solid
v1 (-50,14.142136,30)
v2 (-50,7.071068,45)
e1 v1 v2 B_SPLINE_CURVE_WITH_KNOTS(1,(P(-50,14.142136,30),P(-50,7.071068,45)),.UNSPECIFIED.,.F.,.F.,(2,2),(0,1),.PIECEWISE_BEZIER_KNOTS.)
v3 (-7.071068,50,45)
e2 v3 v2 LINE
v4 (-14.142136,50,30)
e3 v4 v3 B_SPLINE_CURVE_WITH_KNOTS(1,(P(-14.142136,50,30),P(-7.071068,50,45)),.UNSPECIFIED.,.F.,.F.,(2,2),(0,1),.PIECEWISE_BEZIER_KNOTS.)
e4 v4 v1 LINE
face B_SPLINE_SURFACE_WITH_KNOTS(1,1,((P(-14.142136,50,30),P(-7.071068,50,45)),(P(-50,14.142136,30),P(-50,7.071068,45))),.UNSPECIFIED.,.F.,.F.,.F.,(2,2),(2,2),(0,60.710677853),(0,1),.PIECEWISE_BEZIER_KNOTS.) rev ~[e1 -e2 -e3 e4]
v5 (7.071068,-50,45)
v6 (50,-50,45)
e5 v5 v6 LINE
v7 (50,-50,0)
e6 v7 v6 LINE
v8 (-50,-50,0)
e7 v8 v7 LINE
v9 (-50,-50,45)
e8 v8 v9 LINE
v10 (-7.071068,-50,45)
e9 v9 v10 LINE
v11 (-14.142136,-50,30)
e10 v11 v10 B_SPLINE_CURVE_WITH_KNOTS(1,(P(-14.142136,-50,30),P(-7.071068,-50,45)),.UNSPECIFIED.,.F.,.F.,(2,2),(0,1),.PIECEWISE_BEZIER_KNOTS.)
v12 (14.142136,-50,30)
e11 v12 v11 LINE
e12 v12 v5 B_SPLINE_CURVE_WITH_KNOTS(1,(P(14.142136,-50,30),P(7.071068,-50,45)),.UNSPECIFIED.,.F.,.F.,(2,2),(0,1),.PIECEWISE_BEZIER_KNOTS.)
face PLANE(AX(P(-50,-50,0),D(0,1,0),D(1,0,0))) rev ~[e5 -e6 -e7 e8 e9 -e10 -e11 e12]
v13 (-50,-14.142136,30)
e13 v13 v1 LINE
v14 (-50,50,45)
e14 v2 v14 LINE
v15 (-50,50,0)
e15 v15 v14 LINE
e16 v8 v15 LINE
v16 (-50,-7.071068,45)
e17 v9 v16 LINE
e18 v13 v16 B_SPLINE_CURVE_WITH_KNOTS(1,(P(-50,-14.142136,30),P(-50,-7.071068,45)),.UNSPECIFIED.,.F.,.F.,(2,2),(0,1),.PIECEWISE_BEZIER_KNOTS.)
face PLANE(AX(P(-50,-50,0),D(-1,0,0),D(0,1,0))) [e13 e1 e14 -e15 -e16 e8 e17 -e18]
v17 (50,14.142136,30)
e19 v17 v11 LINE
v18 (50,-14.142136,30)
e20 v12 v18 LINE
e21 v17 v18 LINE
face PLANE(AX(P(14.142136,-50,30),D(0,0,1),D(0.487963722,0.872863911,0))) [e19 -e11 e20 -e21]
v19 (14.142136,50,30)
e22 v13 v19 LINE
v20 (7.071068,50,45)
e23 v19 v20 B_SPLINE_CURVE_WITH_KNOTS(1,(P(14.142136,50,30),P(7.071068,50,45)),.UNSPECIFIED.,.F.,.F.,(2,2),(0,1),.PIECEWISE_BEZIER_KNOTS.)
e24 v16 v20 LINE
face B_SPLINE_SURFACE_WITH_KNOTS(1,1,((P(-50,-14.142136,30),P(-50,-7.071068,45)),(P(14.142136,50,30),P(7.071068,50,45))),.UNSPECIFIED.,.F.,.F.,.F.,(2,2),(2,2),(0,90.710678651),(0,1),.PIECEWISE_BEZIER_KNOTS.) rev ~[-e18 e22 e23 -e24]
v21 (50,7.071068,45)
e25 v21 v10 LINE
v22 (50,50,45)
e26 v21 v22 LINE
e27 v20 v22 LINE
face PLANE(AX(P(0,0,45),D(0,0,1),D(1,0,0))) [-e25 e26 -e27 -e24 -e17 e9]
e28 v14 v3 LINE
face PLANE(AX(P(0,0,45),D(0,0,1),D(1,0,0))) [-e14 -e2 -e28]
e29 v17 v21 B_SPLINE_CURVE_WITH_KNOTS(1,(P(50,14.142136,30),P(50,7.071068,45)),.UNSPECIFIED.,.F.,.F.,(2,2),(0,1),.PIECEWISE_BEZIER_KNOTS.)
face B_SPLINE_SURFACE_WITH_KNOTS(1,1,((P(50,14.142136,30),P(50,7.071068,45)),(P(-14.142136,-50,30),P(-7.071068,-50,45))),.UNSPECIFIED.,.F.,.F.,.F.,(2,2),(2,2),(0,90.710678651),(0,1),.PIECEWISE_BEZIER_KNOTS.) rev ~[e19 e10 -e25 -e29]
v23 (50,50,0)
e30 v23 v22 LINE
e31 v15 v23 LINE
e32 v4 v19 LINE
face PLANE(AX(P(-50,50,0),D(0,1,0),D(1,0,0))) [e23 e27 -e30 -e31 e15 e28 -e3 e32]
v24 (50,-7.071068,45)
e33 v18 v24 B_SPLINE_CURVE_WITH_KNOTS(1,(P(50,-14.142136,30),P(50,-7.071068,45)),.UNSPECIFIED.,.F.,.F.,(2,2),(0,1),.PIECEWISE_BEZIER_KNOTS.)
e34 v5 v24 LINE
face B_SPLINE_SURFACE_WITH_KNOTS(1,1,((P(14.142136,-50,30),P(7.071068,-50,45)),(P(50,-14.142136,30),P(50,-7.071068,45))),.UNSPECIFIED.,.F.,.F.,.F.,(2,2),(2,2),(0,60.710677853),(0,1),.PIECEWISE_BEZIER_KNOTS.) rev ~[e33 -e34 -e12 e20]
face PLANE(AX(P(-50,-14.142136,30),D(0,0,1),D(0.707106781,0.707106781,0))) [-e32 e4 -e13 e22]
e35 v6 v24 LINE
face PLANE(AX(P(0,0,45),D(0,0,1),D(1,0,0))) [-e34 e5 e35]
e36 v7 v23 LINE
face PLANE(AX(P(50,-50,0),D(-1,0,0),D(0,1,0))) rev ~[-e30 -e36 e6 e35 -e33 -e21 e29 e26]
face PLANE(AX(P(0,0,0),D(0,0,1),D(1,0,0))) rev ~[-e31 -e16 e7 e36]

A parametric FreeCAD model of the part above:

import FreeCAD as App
import Part
import Sketcher
Q = App.Units.Quantity

doc = App.newDocument("Part")
body = doc.addObject("PartDesign::Body", "Body")

sketch1 = doc.addObject("Sketcher::SketchObject", "Sketch")
body.addObject(sketch1)
sketch1.AttachmentSupport = (doc.XY_Plane, [""])
sketch1.MapMode = "FlatFace"
sketch1.addGeometry([
    Part.LineSegment(App.Vector(-50, 50, 0), App.Vector(-50, -50, 0)),
    Part.LineSegment(App.Vector(-50, -50, 0), App.Vector(50, -50, 0)),
    Part.LineSegment(App.Vector(50, -50, 0), App.Vector(50, 50, 0)),
    Part.LineSegment(App.Vector(50, 50, 0), App.Vector(-50, 50, 0)),
], False)
sketch1.addConstraint([
    Sketcher.Constraint("Coincident", 0, 2, 1, 1),
    Sketcher.Constraint("Coincident", 1, 2, 2, 1),
    Sketcher.Constraint("Coincident", 2, 2, 3, 1),
    Sketcher.Constraint("Coincident", 3, 2, 0, 1),
    Sketcher.Constraint("Vertical", 0),
    Sketcher.Constraint("Horizontal", 1),
    Sketcher.Constraint("Vertical", 2),
    Sketcher.Constraint("Horizontal", 3),
    Sketcher.Constraint("Symmetric", 0, 2, 2, 2, -1, 1),
    Sketcher.Constraint("Equal", 3, 0),
    Sketcher.Constraint("DistanceX", 1, 1, 1, 2, Q("100 mm")),
])
pad1 = doc.addObject("PartDesign::Pad", "Pad")
body.addObject(pad1)
pad1.Profile = sketch1
pad1.Length = 45

sketch2 = doc.addObject("Sketcher::SketchObject", "Sketch001")
body.addObject(sketch2)
sketch2.AttachmentSupport = (doc.XY_Plane, [""])
sketch2.MapMode = "FlatFace"
sketch2.AttachmentOffset = App.Placement(App.Vector(0, 0, 45), App.Rotation())
sketch2.addGeometry([
    Part.LineSegment(App.Vector(50, -7.071068, 0), App.Vector(50, 7.071068, 0)),
    Part.LineSegment(App.Vector(50, 7.071068, 0), App.Vector(-7.071068, -50, 0)),
    Part.LineSegment(App.Vector(-7.071068, -50, 0), App.Vector(7.071068, -50, 0)),
    Part.LineSegment(App.Vector(7.071068, -50, 0), App.Vector(50, -7.071068, 0)),
    Part.LineSegment(App.Vector(7.071068, 50, 0), App.Vector(-7.071068, 50, 0)),
    Part.LineSegment(App.Vector(-7.071068, 50, 0), App.Vector(-50, 7.071068, 0)),
    Part.LineSegment(App.Vector(-50, 7.071068, 0), App.Vector(-50, -7.071068, 0)),
    Part.LineSegment(App.Vector(-50, -7.071068, 0), App.Vector(7.071068, 50, 0)),
], False)
sketch2.addConstraint([
    Sketcher.Constraint("Coincident", 0, 2, 1, 1),
    Sketcher.Constraint("Coincident", 1, 2, 2, 1),
    Sketcher.Constraint("Coincident", 2, 2, 3, 1),
    Sketcher.Constraint("Coincident", 3, 2, 0, 1),
    Sketcher.Constraint("Coincident", 4, 2, 5, 1),
    Sketcher.Constraint("Coincident", 5, 2, 6, 1),
    Sketcher.Constraint("Coincident", 6, 2, 7, 1),
    Sketcher.Constraint("Coincident", 7, 2, 4, 1),
    Sketcher.Constraint("Vertical", 0),
    Sketcher.Constraint("Horizontal", 2),
    Sketcher.Constraint("Horizontal", 4),
    Sketcher.Constraint("Vertical", 6),
    Sketcher.Constraint("Symmetric", 2, 2, 4, 2, -1, 1),
    Sketcher.Constraint("Symmetric", 3, 2, 5, 2, -1, 1),
    Sketcher.Constraint("Parallel", 1, 3),
    Sketcher.Constraint("Parallel", 5, 7),
    Sketcher.Constraint("Horizontal", 0, 2, 5, 2),
    Sketcher.Constraint("Horizontal", 3, 2, 6, 2),
    Sketcher.Constraint("Vertical", 1, 2, 4, 2),
    Sketcher.Constraint("Equal", 4, 0),
    Sketcher.Constraint("DistanceX", -1, 1, 0, 2, Q("50 mm")),
    Sketcher.Constraint("Distance", 1, Q("80.710678 mm")),
])
pocket1 = doc.addObject("PartDesign::Pocket", "Pocket")
body.addObject(pocket1)
pocket1.Profile = sketch2
pocket1.Length = 15

sketch3 = doc.addObject("Sketcher::SketchObject", "Sketch002")
body.addObject(sketch3)
sketch3.AttachmentSupport = (doc.XY_Plane, [""])
sketch3.MapMode = "FlatFace"
sketch3.AttachmentOffset = App.Placement(App.Vector(0, 0, 30), App.Rotation())
sketch3.addGeometry([
    Part.LineSegment(App.Vector(14.142136, -50, 0), App.Vector(50, -14.142136, 0)),
    Part.LineSegment(App.Vector(50, -14.142136, 0), App.Vector(50, 14.142136, 0)),
    Part.LineSegment(App.Vector(50, 14.142136, 0), App.Vector(-14.142136, -50, 0)),
    Part.LineSegment(App.Vector(-14.142136, -50, 0), App.Vector(14.142136, -50, 0)),
], False)
sketch3.addConstraint([
    Sketcher.Constraint("Coincident", 0, 2, 1, 1),
    Sketcher.Constraint("Coincident", 1, 2, 2, 1),
    Sketcher.Constraint("Coincident", 2, 2, 3, 1),
    Sketcher.Constraint("Coincident", 3, 2, 0, 1),
    Sketcher.Constraint("Vertical", 1),
    Sketcher.Constraint("Horizontal", 3),
    Sketcher.Constraint("Parallel", 0, 2),
    Sketcher.Constraint("Equal", 3, 1),
    Sketcher.Constraint("DistanceX", -1, 1, 0, 2, Q("50 mm")),
    Sketcher.Constraint("DistanceY", 2, 2, -1, 1, Q("50 mm")),
    Sketcher.Constraint("Distance", 2, Q("90.710679 mm")),
    Sketcher.Constraint("DistanceX", 3, 1, 3, 2, Q("28.284272 mm")),
])

sketch4 = doc.addObject("Sketcher::SketchObject", "Sketch003")
body.addObject(sketch4)
sketch4.AttachmentSupport = (doc.XY_Plane, [""])
sketch4.MapMode = "FlatFace"
sketch4.AttachmentOffset = App.Placement(App.Vector(0, 0, 45), App.Rotation())
sketch4.addGeometry([
    Part.LineSegment(App.Vector(50, -7.071068, 0), App.Vector(50, 7.071068, 0)),
    Part.LineSegment(App.Vector(50, 7.071068, 0), App.Vector(-7.071068, -50, 0)),
    Part.LineSegment(App.Vector(-7.071068, -50, 0), App.Vector(7.071068, -50, 0)),
    Part.LineSegment(App.Vector(7.071068, -50, 0), App.Vector(50, -7.071068, 0)),
], False)
sketch4.addConstraint([
    Sketcher.Constraint("Coincident", 0, 2, 1, 1),
    Sketcher.Constraint("Coincident", 1, 2, 2, 1),
    Sketcher.Constraint("Coincident", 2, 2, 3, 1),
    Sketcher.Constraint("Coincident", 3, 2, 0, 1),
    Sketcher.Constraint("Vertical", 0),
    Sketcher.Constraint("Horizontal", 2),
    Sketcher.Constraint("Parallel", 1, 3),
    Sketcher.Constraint("Equal", 2, 0),
    Sketcher.Constraint("DistanceX", -1, 1, 0, 2, Q("50 mm")),
    Sketcher.Constraint("DistanceY", 1, 2, -1, 1, Q("50 mm")),
    Sketcher.Constraint("Distance", 1, Q("80.710678 mm")),
    Sketcher.Constraint("DistanceX", 2, 1, 2, 2, Q("14.142136 mm")),
])

subtractiveloft = doc.addObject("PartDesign::SubtractiveLoft", "SubtractiveLoft")
body.addObject(subtractiveloft)
subtractiveloft.Profile = sketch3
subtractiveloft.Sections = [sketch4]

sketch5 = doc.addObject("Sketcher::SketchObject", "Sketch004")
body.addObject(sketch5)
sketch5.AttachmentSupport = (doc.XY_Plane, [""])
sketch5.MapMode = "FlatFace"
sketch5.AttachmentOffset = App.Placement(App.Vector(0, 0, 30), App.Rotation())
sketch5.addGeometry([
    Part.LineSegment(App.Vector(-50, -14.142136, 0), App.Vector(14.142136, 50, 0)),
    Part.LineSegment(App.Vector(14.142136, 50, 0), App.Vector(-14.142136, 50, 0)),
    Part.LineSegment(App.Vector(-14.142136, 50, 0), App.Vector(-50, 14.142136, 0)),
    Part.LineSegment(App.Vector(-50, 14.142136, 0), App.Vector(-50, -14.142136, 0)),
], False)
sketch5.addConstraint([
    Sketcher.Constraint("Coincident", 0, 2, 1, 1),
    Sketcher.Constraint("Coincident", 1, 2, 2, 1),
    Sketcher.Constraint("Coincident", 2, 2, 3, 1),
    Sketcher.Constraint("Coincident", 3, 2, 0, 1),
    Sketcher.Constraint("Horizontal", 1),
    Sketcher.Constraint("Vertical", 3),
    Sketcher.Constraint("Parallel", 0, 2),
    Sketcher.Constraint("Equal", 1, 3),
    Sketcher.Constraint("DistanceY", -1, 1, 0, 2, Q("50 mm")),
    Sketcher.Constraint("DistanceX", 2, 2, -1, 1, Q("50 mm")),
    Sketcher.Constraint("Distance", 0, Q("90.710679 mm")),
    Sketcher.Constraint("DistanceX", 1, 2, 1, 1, Q("28.284272 mm")),
])

sketch6 = doc.addObject("Sketcher::SketchObject", "Sketch005")
body.addObject(sketch6)
sketch6.AttachmentSupport = (doc.XY_Plane, [""])
sketch6.MapMode = "FlatFace"
sketch6.AttachmentOffset = App.Placement(App.Vector(0, 0, 45), App.Rotation())
sketch6.addGeometry([
    Part.LineSegment(App.Vector(7.071068, 50, 0), App.Vector(-7.071068, 50, 0)),
    Part.LineSegment(App.Vector(-7.071068, 50, 0), App.Vector(-50, 7.071068, 0)),
    Part.LineSegment(App.Vector(-50, 7.071068, 0), App.Vector(-50, -7.071068, 0)),
    Part.LineSegment(App.Vector(-50, -7.071068, 0), App.Vector(7.071068, 50, 0)),
], False)
sketch6.addConstraint([
    Sketcher.Constraint("Coincident", 0, 2, 1, 1),
    Sketcher.Constraint("Coincident", 1, 2, 2, 1),
    Sketcher.Constraint("Coincident", 2, 2, 3, 1),
    Sketcher.Constraint("Coincident", 3, 2, 0, 1),
    Sketcher.Constraint("Horizontal", 0),
    Sketcher.Constraint("Vertical", 2),
    Sketcher.Constraint("Parallel", 1, 3),
    Sketcher.Constraint("Equal", 0, 2),
    Sketcher.Constraint("DistanceY", -1, 1, 0, 2, Q("50 mm")),
    Sketcher.Constraint("DistanceX", 1, 2, -1, 1, Q("50 mm")),
    Sketcher.Constraint("Distance", 3, Q("80.710678 mm")),
    Sketcher.Constraint("DistanceX", 0, 2, 0, 1, Q("14.142136 mm")),
])

subtractiveloft2 = doc.addObject("PartDesign::SubtractiveLoft", "SubtractiveLoft001")
body.addObject(subtractiveloft2)
subtractiveloft2.Profile = sketch5
subtractiveloft2.Sections = [sketch6]

doc.recompute()
